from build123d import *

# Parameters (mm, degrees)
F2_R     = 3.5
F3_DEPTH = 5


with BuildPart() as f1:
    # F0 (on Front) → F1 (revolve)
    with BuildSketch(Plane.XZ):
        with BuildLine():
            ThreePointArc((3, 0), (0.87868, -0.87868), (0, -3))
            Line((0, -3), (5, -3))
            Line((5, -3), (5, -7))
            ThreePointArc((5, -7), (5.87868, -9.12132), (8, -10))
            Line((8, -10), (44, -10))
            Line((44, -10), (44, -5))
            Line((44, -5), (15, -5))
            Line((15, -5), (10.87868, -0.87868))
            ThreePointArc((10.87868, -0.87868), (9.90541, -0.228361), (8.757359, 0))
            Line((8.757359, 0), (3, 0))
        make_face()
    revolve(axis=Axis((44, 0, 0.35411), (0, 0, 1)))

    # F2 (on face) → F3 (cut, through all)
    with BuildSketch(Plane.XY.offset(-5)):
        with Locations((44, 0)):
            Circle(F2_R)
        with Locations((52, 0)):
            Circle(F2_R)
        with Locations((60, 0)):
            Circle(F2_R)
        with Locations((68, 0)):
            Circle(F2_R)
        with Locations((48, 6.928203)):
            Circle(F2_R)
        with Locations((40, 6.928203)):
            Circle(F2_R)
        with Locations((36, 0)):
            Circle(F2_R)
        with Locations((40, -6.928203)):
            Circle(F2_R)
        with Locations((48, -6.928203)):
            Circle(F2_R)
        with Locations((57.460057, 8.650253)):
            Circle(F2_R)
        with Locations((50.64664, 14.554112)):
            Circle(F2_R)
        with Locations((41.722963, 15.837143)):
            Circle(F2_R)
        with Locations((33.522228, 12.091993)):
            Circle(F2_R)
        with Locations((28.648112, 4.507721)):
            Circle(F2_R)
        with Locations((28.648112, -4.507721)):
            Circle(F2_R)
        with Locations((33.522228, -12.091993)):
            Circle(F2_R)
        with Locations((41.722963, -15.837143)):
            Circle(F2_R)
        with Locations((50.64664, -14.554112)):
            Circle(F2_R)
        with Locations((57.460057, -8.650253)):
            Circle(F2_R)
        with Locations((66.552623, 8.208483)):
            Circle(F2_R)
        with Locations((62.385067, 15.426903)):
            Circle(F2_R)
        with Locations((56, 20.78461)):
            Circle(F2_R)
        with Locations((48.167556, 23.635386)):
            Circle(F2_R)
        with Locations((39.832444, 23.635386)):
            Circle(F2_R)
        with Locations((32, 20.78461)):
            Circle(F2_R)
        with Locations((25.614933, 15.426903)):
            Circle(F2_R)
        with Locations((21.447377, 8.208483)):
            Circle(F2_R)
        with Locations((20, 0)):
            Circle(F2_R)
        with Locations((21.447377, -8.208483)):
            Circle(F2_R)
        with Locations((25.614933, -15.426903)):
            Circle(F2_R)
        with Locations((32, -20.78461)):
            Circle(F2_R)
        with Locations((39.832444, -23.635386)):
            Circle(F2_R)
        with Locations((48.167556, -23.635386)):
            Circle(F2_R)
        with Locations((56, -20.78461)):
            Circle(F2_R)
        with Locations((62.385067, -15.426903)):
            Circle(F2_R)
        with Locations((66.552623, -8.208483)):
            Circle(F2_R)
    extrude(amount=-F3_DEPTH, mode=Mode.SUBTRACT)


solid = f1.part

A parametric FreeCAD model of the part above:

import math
import FreeCAD as App
import Part
import Sketcher
from FreeCAD import Vector
Q = App.Units.Quantity

doc = App.newDocument("Part")
body = doc.addObject("PartDesign::Body", "Body")

# Sketch on XZ plane
sketch1 = body.newObject("Sketcher::SketchObject", "Sketch")
sketch1.AttachmentSupport = (doc.getObject("XZ_Plane"), [""])
sketch1.MapMode = "FlatFace"
sketch1.addGeometry(Part.ArcOfCircle(Part.Circle(Vector(3, -3, 0), Vector(0, 0, 1), 3), math.radians(90), math.radians(180)), False)
sketch1.addGeometry(Part.LineSegment(Vector(0, -3, 0), Vector(5, -3, 0)), False)
sketch1.addGeometry(Part.LineSegment(Vector(5, -3, 0), Vector(5, -7, 0)), False)
sketch1.addGeometry(Part.ArcOfCircle(Part.Circle(Vector(8, -7, 0), Vector(0, 0, 1), 3), math.radians(-180), math.radians(-90)), False)
sketch1.addGeometry(Part.LineSegment(Vector(8, -10, 0), Vector(44, -10, 0)), False)
sketch1.addGeometry(Part.LineSegment(Vector(44, -10, 0), Vector(44, -5, 0)), False)
sketch1.addGeometry(Part.LineSegment(Vector(44, -5, 0), Vector(15, -5, 0)), False)
sketch1.addGeometry(Part.LineSegment(Vector(15, -5, 0), Vector(10.9, -0.9, 0)), False)
sketch1.addGeometry(Part.ArcOfCircle(Part.Circle(Vector(8.8, -3, 0), Vector(0, 0, 1), 3), math.radians(45), math.radians(90)), False)
sketch1.addGeometry(Part.LineSegment(Vector(8.8, 0, 0), Vector(3, 0, 0)), False)
sketch1.addGeometry(Part.LineSegment(Vector(44, -10, 0), Vector(44, 0, 0)), True)  # axis
sketch1.addConstraint(Sketcher.Constraint("Coincident", 0, 2, 1, 1))
sketch1.addConstraint(Sketcher.Constraint("Coincident", 1, 2, 2, 1))
sketch1.addConstraint(Sketcher.Constraint("Tangent", 2, 2, 3, 1))
sketch1.addConstraint(Sketcher.Constraint("Tangent", 3, 2, 4, 1))
sketch1.addConstraint(Sketcher.Constraint("Coincident", 4, 2, 5, 1))
sketch1.addConstraint(Sketcher.Constraint("Coincident", 5, 2, 6, 1))
sketch1.addConstraint(Sketcher.Constraint("Coincident", 6, 2, 7, 1))
sketch1.addConstraint(Sketcher.Constraint("Tangent", 7, 2, 8, 1))
sketch1.addConstraint(Sketcher.Constraint("Tangent", 8, 2, 9, 1))
sketch1.addConstraint(Sketcher.Constraint("Tangent", 9, 2, 0, 1))
sketch1.addConstraint(Sketcher.Constraint("Horizontal", 1))
sketch1.addConstraint(Sketcher.Constraint("Vertical", 2))
sketch1.addConstraint(Sketcher.Constraint("Horizontal", 4))
sketch1.addConstraint(Sketcher.Constraint("Vertical", 5))
sketch1.addConstraint(Sketcher.Constraint("Horizontal", 6))
sketch1.addConstraint(Sketcher.Constraint("Horizontal", 9))
sketch1.addConstraint(Sketcher.Constraint("Vertical", 10))
sketch1.addConstraint(Sketcher.Constraint("Coincident", 10, 1, 4, 2))
sketch1.addConstraint(Sketcher.Constraint("Equal", 0, 3))
sketch1.addConstraint(Sketcher.Constraint("PointOnObject", 0, 2, -2))
sketch1.addConstraint(Sketcher.Constraint("PointOnObject", 8, 2, -1))
sketch1.addConstraint(Sketcher.Constraint("PointOnObject", 10, 2, -1))
sketch1.addConstraint(Sketcher.Constraint("Equal", 1, 5))
sketch1.addConstraint(Sketcher.Constraint("Radius", 0, Q("3.000001 mm")))
sketch1.addConstraint(Sketcher.Constraint("DistanceX", 1, 1, 1, 2, Q("5 mm")))
sketch1.addConstraint(Sketcher.Constraint("DistanceX", 4, 1, 4, 2, Q("36 mm")))
sketch1.addConstraint(Sketcher.Constraint("DistanceX", 6, 2, 6, 1, Q("29 mm")))
sketch1.addConstraint(Sketcher.Constraint("DistanceY", 2, 2, 2, 1, Q("4 mm")))
sketch1.addConstraint(Sketcher.Constraint("DistanceY", 10, 1, 10, 2, Q("10 mm")))
sketch1.addConstraint(Sketcher.Constraint("Angle", 7, Q("135 deg")))
sketch1.addConstraint(Sketcher.Constraint("Radius", 8, Q("2.999994 mm")))
revolution = body.newObject("PartDesign::Revolution", "Revolution")
revolution.Profile = sketch1
revolution.ReferenceAxis = (sketch1, ["Axis0"])
revolution.Angle = 360

# Sketch on XY plane
sketch2 = body.newObject("Sketcher::SketchObject", "Sketch001")
sketch2.AttachmentSupport = (doc.getObject("XY_Plane"), [""])
sketch2.MapMode = "FlatFace"
sketch2.AttachmentOffset = App.Placement(Vector(0, 0, -5), App.Rotation())
sketch2.addGeometry(Part.Circle(Vector(44, 0, 0), Vector(0, 0, 1), 3.5), False)
sketch2.addGeometry(Part.Circle(Vector(52, 0, 0), Vector(0, 0, 1), 3.5), False)
sketch2.addGeometry(Part.Circle(Vector(60, 0, 0), Vector(0, 0, 1), 3.5), False)
sketch2.addGeometry(Part.Circle(Vector(68, 0, 0), Vector(0, 0, 1), 3.5), False)
sketch2.addGeometry(Part.Circle(Vector(48, 6.9, 0), Vector(0, 0, 1), 3.5), False)
sketch2.addGeometry(Part.Circle(Vector(40, 6.9, 0), Vector(0, 0, 1), 3.5), False)
sketch2.addGeometry(Part.Circle(Vector(36, 0, 0), Vector(0, 0, 1), 3.5), False)
sketch2.addGeometry(Part.Circle(Vector(40, -6.9, 0), Vector(0, 0, 1), 3.5), False)
sketch2.addGeometry(Part.Circle(Vector(48, -6.9, 0), Vector(0, 0, 1), 3.5), False)
sketch2.addGeometry(Part.Circle(Vector(57.5, 8.7, 0), Vector(0, 0, 1), 3.5), False)
sketch2.addGeometry(Part.Circle(Vector(50.6, 14.6, 0), Vector(0, 0, 1), 3.5), False)
sketch2.addGeometry(Part.Circle(Vector(41.7, 15.8, 0), Vector(0, 0, 1), 3.5), False)
sketch2.addGeometry(Part.Circle(Vector(33.5, 12.1, 0), Vector(0, 0, 1), 3.5), False)
sketch2.addGeometry(Part.Circle(Vector(28.6, 4.5, 0), Vector(0, 0, 1), 3.5), False)
sketch2.addGeometry(Part.Circle(Vector(28.6, -4.5, 0), Vector(0, 0, 1), 3.5), False)
sketch2.addGeometry(Part.Circle(Vector(33.5, -12.1, 0), Vector(0, 0, 1), 3.5), False)
sketch2.addGeometry(Part.Circle(Vector(41.7, -15.8, 0), Vector(0, 0, 1), 3.5), False)
sketch2.addGeometry(Part.Circle(Vector(50.6, -14.6, 0), Vector(0, 0, 1), 3.5), False)
sketch2.addGeometry(Part.Circle(Vector(57.5, -8.7, 0), Vector(0, 0, 1), 3.5), False)
sketch2.addGeometry(Part.Circle(Vector(66.6, 8.2, 0), Vector(0, 0, 1), 3.5), False)
sketch2.addGeometry(Part.Circle(Vector(62.4, 15.4, 0), Vector(0, 0, 1), 3.5), False)
sketch2.addGeometry(Part.Circle(Vector(56, 20.8, 0), Vector(0, 0, 1), 3.5), False)
sketch2.addGeometry(Part.Circle(Vector(48.2, 23.6, 0), Vector(0, 0, 1), 3.5), False)
sketch2.addGeometry(Part.Circle(Vector(39.8, 23.6, 0), Vector(0, 0, 1), 3.5), False)
sketch2.addGeometry(Part.Circle(Vector(32, 20.8, 0), Vector(0, 0, 1), 3.5), False)
sketch2.addGeometry(Part.Circle(Vector(25.6, 15.4, 0), Vector(0, 0, 1), 3.5), False)
sketch2.addGeometry(Part.Circle(Vector(21.4, 8.2, 0), Vector(0, 0, 1), 3.5), False)
sketch2.addGeometry(Part.Circle(Vector(20, 0, 0), Vector(0, 0, 1), 3.5), False)
sketch2.addGeometry(Part.Circle(Vector(21.4, -8.2, 0), Vector(0, 0, 1), 3.5), False)
sketch2.addGeometry(Part.Circle(Vector(25.6, -15.4, 0), Vector(0, 0, 1), 3.5), False)
sketch2.addGeometry(Part.Circle(Vector(32, -20.8, 0), Vector(0, 0, 1), 3.5), False)
sketch2.addGeometry(Part.Circle(Vector(39.8, -23.6, 0), Vector(0, 0, 1), 3.5), False)
sketch2.addGeometry(Part.Circle(Vector(48.2, -23.6, 0), Vector(0, 0, 1), 3.5), False)
sketch2.addGeometry(Part.Circle(Vector(56, -20.8, 0), Vector(0, 0, 1), 3.5), False)
sketch2.addGeometry(Part.Circle(Vector(62.4, -15.4, 0), Vector(0, 0, 1), 3.5), False)
sketch2.addGeometry(Part.Circle(Vector(66.6, -8.2, 0), Vector(0, 0, 1), 3.5), False)
sketch2.addConstraint(Sketcher.Constraint("Equal", 0, 1))
sketch2.addConstraint(Sketcher.Constraint("Equal", 1, 2))
sketch2.addConstraint(Sketcher.Constraint("Equal", 2, 3))
sketch2.addConstraint(Sketcher.Constraint("Equal", 3, 4))
sketch2.addConstraint(Sketcher.Constraint("Equal", 4, 5))
sketch2.addConstraint(Sketcher.Constraint("Equal", 5, 6))
sketch2.addConstraint(Sketcher.Constraint("Equal", 6, 7))
sketch2.addConstraint(Sketcher.Constraint("Equal", 7, 8))
sketch2.addConstraint(Sketcher.Constraint("Equal", 8, 9))
sketch2.addConstraint(Sketcher.Constraint("Equal", 9, 10))
sketch2.addConstraint(Sketcher.Constraint("Equal", 10, 11))
sketch2.addConstraint(Sketcher.Constraint("Equal", 11, 12))
sketch2.addConstraint(Sketcher.Constraint("Equal", 12, 13))
sketch2.addConstraint(Sketcher.Constraint("Equal", 13, 14))
sketch2.addConstraint(Sketcher.Constraint("Equal", 14, 15))
sketch2.addConstraint(Sketcher.Constraint("Equal", 15, 16))
sketch2.addConstraint(Sketcher.Constraint("Equal", 16, 17))
sketch2.addConstraint(Sketcher.Constraint("Equal", 17, 18))
sketch2.addConstraint(Sketcher.Constraint("Equal", 18, 19))
sketch2.addConstraint(Sketcher.Constraint("Equal", 19, 20))
sketch2.addConstraint(Sketcher.Constraint("Equal", 20, 21))
sketch2.addConstraint(Sketcher.Constraint("Equal", 21, 22))
sketch2.addConstraint(Sketcher.Constraint("Equal", 22, 23))
sketch2.addConstraint(Sketcher.Constraint("Equal", 23, 24))
sketch2.addConstraint(Sketcher.Constraint("Equal", 24, 25))
sketch2.addConstraint(Sketcher.Constraint("Equal", 25, 26))
sketch2.addConstraint(Sketcher.Constraint("Equal", 26, 27))
sketch2.addConstraint(Sketcher.Constraint("Equal", 27, 28))
sketch2.addConstraint(Sketcher.Constraint("Equal", 28, 29))
sketch2.addConstraint(Sketcher.Constraint("Equal", 29, 30))
sketch2.addConstraint(Sketcher.Constraint("Equal", 30, 31))
sketch2.addConstraint(Sketcher.Constraint("Equal", 31, 32))
sketch2.addConstraint(Sketcher.Constraint("Equal", 32, 33))
sketch2.addConstraint(Sketcher.Constraint("Equal", 33, 34))
sketch2.addConstraint(Sketcher.Constraint("Equal", 34, 35))
sketch2.addConstraint(Sketcher.Constraint("Symmetric", 5, 3, 7, 3, -1))
sketch2.addConstraint(Sketcher.Constraint("Symmetric", 4, 3, 8, 3, -1))
sketch2.addConstraint(Sketcher.Constraint("Symmetric", 13, 3, 14, 3, -1))
sketch2.addConstraint(Sketcher.Constraint("Symmetric", 12, 3, 15, 3, -1))
sketch2.addConstraint(Sketcher.Constraint("Symmetric", 11, 3, 16, 3, -1))
sketch2.addConstraint(Sketcher.Constraint("Symmetric", 10, 3, 17, 3, -1))
sketch2.addConstraint(Sketcher.Constraint("Symmetric", 9, 3, 18, 3, -1))
sketch2.addConstraint(Sketcher.Constraint("Symmetric", 26, 3, 28, 3, -1))
sketch2.addConstraint(Sketcher.Constraint("Symmetric", 25, 3, 29, 3, -1))
sketch2.addConstraint(Sketcher.Constraint("Symmetric", 24, 3, 30, 3, -1))
sketch2.addConstraint(Sketcher.Constraint("Symmetric", 23, 3, 31, 3, -1))
sketch2.addConstraint(Sketcher.Constraint("Symmetric", 22, 3, 32, 3, -1))
sketch2.addConstraint(Sketcher.Constraint("Symmetric", 21, 3, 33, 3, -1))
sketch2.addConstraint(Sketcher.Constraint("Symmetric", 20, 3, 34, 3, -1))
sketch2.addConstraint(Sketcher.Constraint("Symmetric", 19, 3, 35, 3, -1))
sketch2.addConstraint(Sketcher.Constraint("PointOnObject", 0, 3, -1))
sketch2.addConstraint(Sketcher.Constraint("PointOnObject", 1, 3, -1))
sketch2.addConstraint(Sketcher.Constraint("PointOnObject", 2, 3, -1))
sketch2.addConstraint(Sketcher.Constraint("PointOnObject", 3, 3, -1))
sketch2.addConstraint(Sketcher.Constraint("PointOnObject", 6, 3, -1))
sketch2.addConstraint(Sketcher.Constraint("PointOnObject", 27, 3, -1))
sketch2.addConstraint(Sketcher.Constraint("Horizontal", 4, 3, 5, 3))
sketch2.addConstraint(Sketcher.Constraint("Horizontal", 22, 3, 23, 3))
sketch2.addConstraint(Sketcher.Constraint("Horizontal", 21, 3, 24, 3))
sketch2.addConstraint(Sketcher.Constraint("Horizontal", 20, 3, 25, 3))
sketch2.addConstraint(Sketcher.Constraint("Horizontal", 19, 3, 26, 3))
sketch2.addConstraint(Sketcher.Constraint("Diameter", 0, Q("7 mm")))
sketch2.addConstraint(Sketcher.Constraint("DistanceX", -1, 1, 0, 3, Q("44 mm")))
sketch2.addConstraint(Sketcher.Constraint("DistanceX", -1, 1, 1, 3, Q("52 mm")))
sketch2.addConstraint(Sketcher.Constraint("DistanceX", -1, 1, 2, 3, Q("60 mm")))
sketch2.addConstraint(Sketcher.Constraint("DistanceX", -1, 1, 3, 3, Q("68 mm")))
sketch2.addConstraint(Sketcher.Constraint("DistanceX", -1, 1, 4, 3, Q("48 mm")))
sketch2.addConstraint(Sketcher.Constraint("DistanceX", -1, 1, 5, 3, Q("40 mm")))
sketch2.addConstraint(Sketcher.Constraint("DistanceX", -1, 1, 6, 3, Q("36 mm")))
sketch2.addConstraint(Sketcher.Constraint("DistanceX", -1, 1, 21, 3, Q("56 mm")))
sketch2.addConstraint(Sketcher.Constraint("DistanceX", -1, 1, 24, 3, Q("32 mm")))
sketch2.addConstraint(Sketcher.Constraint("DistanceX", -1, 1, 27, 3, Q("20 mm")))
sketch2.addConstraint(Sketcher.Constraint("DistanceY", 10, 3, 21, 3, Q("6.230498 mm")))
sketch2.addConstraint(Sketcher.Constraint("DistanceX", -1, 1, 10, 3, Q("50.64664 mm")))
sketch2.addConstraint(Sketcher.Constraint("DistanceY", -1, 1, 13, 3, Q("4.507721 mm")))
sketch2.addConstraint(Sketcher.Constraint("DistanceY", -1, 1, 21, 3, Q("20.78461 mm")))
sketch2.addConstraint(Sketcher.Constraint("DistanceY", 4, 3, 9, 3, Q("1.72205 mm")))
sketch2.addConstraint(Sketcher.Constraint("DistanceY", 4, 3, 10, 3, Q("7.625909 mm")))
sketch2.addConstraint(Sketcher.Constraint("DistanceY", 10, 3, 11, 3, Q("1.283031 mm")))
sketch2.addConstraint(Sketcher.Constraint("DistanceY", 5, 3, 12, 3, Q("5.16379 mm")))
sketch2.addConstraint(Sketcher.Constraint("DistanceY", 19, 3, 9, 3, Q("0.44177 mm")))
sketch2.addConstraint(Sketcher.Constraint("DistanceY", 19, 3, 20, 3, Q("7.21842 mm")))
sketch2.addConstraint(Sketcher.Constraint("DistanceX", 9, 3, 20, 3, Q("4.92501 mm")))
sketch2.addConstraint(Sketcher.Constraint("DistanceX", 22, 3, 20, 3, Q("14.217511 mm")))
sketch2.addConstraint(Sketcher.Constraint("DistanceX", 23, 3, 11, 3, Q("1.890519 mm")))
sketch2.addConstraint(Sketcher.Constraint("DistanceX", 23, 3, 22, 3, Q("8.335112 mm")))
sketch2.addConstraint(Sketcher.Constraint("DistanceX", 25, 3, 13, 3, Q("3.033179 mm")))
sketch2.addConstraint(Sketcher.Constraint("DistanceX", 25, 3, 11, 3, Q("16.10803 mm")))
sketch2.addConstraint(Sketcher.Constraint("DistanceX", 26, 3, 12, 3, Q("12.074851 mm")))
sketch2.addConstraint(Sketcher.Constraint("DistanceX", -1, 1, 9, 3, Q("57.460057 mm")))
sketch2.addConstraint(Sketcher.Constraint("DistanceX", -1, 1, 12, 3, Q("33.522228 mm")))
sketch2.addConstraint(Sketcher.Constraint("DistanceX", -1, 1, 19, 3, Q("66.552623 mm")))
sketch2.addConstraint(Sketcher.Constraint("DistanceY", -1, 1, 22, 3, Q("23.635386 mm")))
pocket1 = body.newObject("PartDesign::Pocket", "Pocket")
pocket1.Profile = sketch2
pocket1.Type = "ThroughAll"

doc.recompute()
